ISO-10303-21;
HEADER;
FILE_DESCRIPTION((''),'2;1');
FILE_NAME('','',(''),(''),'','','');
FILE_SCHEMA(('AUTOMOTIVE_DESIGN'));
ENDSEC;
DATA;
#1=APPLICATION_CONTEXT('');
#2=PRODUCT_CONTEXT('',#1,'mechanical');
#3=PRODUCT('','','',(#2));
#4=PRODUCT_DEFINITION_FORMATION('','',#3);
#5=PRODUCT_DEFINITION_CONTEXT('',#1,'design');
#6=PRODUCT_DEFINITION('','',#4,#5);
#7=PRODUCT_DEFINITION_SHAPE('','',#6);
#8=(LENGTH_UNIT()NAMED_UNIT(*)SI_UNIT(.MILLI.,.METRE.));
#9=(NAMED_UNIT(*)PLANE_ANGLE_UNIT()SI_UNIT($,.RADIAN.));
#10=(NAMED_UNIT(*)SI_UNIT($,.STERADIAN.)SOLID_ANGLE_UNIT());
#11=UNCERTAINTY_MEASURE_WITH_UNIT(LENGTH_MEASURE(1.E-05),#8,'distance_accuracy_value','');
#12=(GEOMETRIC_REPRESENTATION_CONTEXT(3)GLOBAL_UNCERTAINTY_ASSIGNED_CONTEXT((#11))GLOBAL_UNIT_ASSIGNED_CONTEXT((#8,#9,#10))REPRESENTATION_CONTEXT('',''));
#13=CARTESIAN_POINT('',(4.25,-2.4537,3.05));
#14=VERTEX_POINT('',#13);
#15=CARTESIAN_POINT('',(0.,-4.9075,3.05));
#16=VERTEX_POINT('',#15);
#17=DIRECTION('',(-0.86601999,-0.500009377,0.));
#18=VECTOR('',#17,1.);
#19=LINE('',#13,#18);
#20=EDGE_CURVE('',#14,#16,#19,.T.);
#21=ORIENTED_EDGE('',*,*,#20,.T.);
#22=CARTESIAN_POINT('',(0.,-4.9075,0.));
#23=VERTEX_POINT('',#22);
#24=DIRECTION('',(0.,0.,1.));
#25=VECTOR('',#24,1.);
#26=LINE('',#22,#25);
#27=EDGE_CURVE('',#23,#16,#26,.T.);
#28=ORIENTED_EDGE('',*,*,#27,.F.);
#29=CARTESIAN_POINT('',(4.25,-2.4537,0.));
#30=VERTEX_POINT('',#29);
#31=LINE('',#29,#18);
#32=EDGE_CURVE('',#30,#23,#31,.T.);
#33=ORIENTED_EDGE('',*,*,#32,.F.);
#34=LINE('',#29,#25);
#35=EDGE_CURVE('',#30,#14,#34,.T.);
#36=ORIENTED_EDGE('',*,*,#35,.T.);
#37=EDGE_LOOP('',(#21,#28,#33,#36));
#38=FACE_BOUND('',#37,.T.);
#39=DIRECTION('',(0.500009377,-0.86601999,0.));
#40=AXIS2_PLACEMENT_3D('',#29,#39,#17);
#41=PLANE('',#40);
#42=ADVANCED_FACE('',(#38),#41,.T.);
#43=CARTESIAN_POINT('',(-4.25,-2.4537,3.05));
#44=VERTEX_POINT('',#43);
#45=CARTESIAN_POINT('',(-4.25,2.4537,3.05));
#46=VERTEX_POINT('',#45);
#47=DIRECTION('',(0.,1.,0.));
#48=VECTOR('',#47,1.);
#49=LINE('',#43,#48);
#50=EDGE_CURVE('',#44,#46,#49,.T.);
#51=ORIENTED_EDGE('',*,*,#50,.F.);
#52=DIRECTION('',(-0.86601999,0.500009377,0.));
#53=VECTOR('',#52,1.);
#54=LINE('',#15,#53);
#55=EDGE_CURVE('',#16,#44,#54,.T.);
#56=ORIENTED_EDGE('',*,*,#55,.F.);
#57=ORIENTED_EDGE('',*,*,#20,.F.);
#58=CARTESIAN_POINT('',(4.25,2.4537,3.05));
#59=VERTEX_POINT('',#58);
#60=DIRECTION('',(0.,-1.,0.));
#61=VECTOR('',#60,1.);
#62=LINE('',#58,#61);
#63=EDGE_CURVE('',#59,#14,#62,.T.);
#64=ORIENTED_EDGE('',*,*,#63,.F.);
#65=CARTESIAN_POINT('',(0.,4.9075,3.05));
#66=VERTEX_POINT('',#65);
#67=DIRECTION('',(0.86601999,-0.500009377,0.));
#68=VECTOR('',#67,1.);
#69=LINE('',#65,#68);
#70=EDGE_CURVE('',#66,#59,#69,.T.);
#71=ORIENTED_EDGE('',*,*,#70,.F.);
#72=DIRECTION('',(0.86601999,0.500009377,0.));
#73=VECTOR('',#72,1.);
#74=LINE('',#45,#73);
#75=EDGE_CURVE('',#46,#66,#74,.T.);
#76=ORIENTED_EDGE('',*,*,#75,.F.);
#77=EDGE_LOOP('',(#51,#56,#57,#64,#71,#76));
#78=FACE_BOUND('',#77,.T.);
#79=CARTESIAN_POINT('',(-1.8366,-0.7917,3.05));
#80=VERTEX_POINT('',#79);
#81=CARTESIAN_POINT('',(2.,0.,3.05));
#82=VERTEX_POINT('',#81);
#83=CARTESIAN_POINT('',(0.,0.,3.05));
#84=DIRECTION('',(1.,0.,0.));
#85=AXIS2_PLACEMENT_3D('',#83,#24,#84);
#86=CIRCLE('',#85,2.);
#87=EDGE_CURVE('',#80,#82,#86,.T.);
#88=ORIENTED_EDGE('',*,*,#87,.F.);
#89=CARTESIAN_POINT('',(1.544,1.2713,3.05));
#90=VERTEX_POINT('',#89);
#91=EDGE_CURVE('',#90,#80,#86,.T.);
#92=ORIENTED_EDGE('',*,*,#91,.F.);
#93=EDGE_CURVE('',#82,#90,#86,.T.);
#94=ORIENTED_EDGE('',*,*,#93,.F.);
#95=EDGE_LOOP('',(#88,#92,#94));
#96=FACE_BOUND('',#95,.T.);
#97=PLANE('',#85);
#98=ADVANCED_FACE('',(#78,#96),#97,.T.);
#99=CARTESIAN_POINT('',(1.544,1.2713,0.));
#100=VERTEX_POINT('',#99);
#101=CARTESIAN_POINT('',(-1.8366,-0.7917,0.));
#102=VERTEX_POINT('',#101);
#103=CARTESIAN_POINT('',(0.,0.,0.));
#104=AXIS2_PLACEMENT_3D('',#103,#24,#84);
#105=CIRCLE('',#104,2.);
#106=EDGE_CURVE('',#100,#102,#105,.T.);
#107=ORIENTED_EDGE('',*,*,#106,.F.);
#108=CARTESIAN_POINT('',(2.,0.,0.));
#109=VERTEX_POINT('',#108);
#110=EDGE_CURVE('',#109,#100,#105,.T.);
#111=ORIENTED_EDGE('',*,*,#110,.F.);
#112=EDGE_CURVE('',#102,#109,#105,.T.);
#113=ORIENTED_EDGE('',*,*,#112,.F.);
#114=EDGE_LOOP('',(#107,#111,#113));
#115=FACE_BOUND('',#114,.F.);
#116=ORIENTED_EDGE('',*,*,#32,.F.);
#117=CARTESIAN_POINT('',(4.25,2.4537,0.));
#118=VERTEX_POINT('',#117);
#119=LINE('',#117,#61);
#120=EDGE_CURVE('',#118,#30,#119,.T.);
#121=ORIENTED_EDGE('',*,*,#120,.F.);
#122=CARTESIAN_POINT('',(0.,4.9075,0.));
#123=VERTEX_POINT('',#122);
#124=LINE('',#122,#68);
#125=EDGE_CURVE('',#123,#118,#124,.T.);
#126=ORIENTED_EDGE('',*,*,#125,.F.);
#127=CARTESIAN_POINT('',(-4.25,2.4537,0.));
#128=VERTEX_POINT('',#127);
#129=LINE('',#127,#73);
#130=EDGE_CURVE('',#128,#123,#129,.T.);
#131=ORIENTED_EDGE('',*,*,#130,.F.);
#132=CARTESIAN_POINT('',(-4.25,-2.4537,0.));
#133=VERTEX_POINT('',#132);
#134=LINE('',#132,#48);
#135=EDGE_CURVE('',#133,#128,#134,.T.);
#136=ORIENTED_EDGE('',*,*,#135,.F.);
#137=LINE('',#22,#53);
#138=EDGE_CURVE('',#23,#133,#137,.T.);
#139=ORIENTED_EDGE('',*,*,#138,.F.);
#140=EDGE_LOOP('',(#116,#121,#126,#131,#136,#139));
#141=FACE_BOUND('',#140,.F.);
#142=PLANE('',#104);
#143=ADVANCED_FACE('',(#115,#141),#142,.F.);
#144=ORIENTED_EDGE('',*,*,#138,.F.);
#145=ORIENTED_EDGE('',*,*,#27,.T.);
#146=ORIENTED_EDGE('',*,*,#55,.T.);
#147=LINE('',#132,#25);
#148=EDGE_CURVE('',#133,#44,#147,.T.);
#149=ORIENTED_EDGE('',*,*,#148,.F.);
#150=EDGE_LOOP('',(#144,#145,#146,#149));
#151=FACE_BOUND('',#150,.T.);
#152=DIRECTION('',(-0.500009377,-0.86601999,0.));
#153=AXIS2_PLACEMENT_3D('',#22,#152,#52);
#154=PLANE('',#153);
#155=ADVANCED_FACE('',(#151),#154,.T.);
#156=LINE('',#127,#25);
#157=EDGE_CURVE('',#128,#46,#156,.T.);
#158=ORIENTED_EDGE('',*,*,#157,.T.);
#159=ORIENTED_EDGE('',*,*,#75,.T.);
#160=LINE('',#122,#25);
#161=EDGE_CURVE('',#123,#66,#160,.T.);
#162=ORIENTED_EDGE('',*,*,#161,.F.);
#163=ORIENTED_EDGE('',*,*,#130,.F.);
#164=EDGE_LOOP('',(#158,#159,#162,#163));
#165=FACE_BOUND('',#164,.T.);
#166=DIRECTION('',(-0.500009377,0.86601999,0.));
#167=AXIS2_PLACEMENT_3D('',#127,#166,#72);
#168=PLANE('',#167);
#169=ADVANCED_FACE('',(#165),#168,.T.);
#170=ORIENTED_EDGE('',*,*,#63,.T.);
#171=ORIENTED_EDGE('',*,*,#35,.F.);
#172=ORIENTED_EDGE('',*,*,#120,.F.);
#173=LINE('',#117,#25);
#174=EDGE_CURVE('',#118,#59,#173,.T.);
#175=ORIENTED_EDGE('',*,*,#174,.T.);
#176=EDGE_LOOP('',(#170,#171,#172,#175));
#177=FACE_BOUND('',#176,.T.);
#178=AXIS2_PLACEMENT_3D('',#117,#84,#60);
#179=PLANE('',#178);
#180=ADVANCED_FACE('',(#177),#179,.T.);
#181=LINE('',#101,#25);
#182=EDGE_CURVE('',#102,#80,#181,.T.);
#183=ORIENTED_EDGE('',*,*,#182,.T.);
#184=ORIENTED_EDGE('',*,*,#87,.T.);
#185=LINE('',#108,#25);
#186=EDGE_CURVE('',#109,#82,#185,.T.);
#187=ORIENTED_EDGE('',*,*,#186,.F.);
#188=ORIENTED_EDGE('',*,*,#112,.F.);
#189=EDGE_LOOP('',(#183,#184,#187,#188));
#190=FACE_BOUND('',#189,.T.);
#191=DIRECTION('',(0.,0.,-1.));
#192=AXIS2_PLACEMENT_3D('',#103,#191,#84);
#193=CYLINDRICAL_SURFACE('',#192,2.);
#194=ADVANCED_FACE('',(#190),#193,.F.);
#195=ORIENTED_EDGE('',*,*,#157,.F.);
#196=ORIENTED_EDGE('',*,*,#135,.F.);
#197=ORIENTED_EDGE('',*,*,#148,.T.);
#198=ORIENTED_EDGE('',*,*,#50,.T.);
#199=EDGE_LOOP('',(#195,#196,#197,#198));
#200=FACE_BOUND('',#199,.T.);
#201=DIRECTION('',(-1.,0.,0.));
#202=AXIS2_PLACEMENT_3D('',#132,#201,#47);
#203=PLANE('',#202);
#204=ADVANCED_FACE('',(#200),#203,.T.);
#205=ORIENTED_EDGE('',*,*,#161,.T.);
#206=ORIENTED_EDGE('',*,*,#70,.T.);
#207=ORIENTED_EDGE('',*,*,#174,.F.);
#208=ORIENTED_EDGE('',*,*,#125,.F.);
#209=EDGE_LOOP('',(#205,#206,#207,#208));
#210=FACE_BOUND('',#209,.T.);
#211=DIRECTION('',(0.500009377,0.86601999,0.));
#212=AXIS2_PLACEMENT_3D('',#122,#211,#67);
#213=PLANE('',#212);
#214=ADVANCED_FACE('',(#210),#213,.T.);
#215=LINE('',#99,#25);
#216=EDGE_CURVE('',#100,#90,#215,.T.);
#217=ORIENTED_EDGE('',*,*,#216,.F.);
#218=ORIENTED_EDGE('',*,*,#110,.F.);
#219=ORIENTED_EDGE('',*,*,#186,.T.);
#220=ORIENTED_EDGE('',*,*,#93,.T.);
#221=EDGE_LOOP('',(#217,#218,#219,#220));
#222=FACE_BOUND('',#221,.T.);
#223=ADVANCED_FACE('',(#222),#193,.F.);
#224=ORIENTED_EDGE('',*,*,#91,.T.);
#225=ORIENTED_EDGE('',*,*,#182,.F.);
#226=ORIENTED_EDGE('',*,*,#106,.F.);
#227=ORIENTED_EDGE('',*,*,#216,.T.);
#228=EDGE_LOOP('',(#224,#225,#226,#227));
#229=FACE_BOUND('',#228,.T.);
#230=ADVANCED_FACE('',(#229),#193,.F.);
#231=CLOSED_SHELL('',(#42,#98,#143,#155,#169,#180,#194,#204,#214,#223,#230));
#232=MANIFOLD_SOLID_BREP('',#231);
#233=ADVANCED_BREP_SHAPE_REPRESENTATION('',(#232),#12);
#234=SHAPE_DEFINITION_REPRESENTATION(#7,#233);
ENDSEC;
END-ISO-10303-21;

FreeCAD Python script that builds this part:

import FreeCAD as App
import Part
import Sketcher
Q = App.Units.Quantity

doc = App.newDocument("Part")
params = doc.addObject("Spreadsheet::Sheet", "Params")
for row, (alias, value) in enumerate([
    ("sketch1_diameter", "4 mm"),
    ("pad1_length", "3.05 mm"),
], start=1):
    params.set(f"A{row}", alias)
    params.set(f"B{row}", "=" + value)
    params.setAlias(f"B{row}", alias)

body = doc.addObject("PartDesign::Body", "Body")

# Sketch on XY plane
sketch1 = body.newObject("Sketcher::SketchObject", "Sketch")
sketch1.AttachmentSupport = (doc.getObject("XY_Plane"), [""])
sketch1.MapMode = "FlatFace"
sketch1.addGeometry([
    Part.LineSegment(App.Vector(-4.2, -2.5, 0), App.Vector(0, -4.9, 0)),  # 0
    Part.LineSegment(App.Vector(0, -4.9, 0), App.Vector(4.2, -2.5, 0)),  # 1
    Part.LineSegment(App.Vector(4.2, -2.5, 0), App.Vector(4.2, 2.5, 0)),  # 2
    Part.LineSegment(App.Vector(4.2, 2.5, 0), App.Vector(0, 4.9, 0)),  # 3
    Part.LineSegment(App.Vector(0, 4.9, 0), App.Vector(-4.2, 2.5, 0)),  # 4
    Part.LineSegment(App.Vector(-4.2, 2.5, 0), App.Vector(-4.2, -2.5, 0)),  # 5
    Part.Circle(App.Vector(0, 0, 0), App.Vector(0, 0, 1), 2),  # 6
], False)
sketch1.addConstraint([
    Sketcher.Constraint("Coincident", 0, 2, 1, 1),
    Sketcher.Constraint("Coincident", 1, 2, 2, 1),
    Sketcher.Constraint("Coincident", 2, 2, 3, 1),
    Sketcher.Constraint("Coincident", 3, 2, 4, 1),
    Sketcher.Constraint("Coincident", 4, 2, 5, 1),
    Sketcher.Constraint("Coincident", 5, 2, 0, 1),
    Sketcher.Constraint("Vertical", 2),
    Sketcher.Constraint("Vertical", 5),
    Sketcher.Constraint("Coincident", 6, 3, -1, 1),
    Sketcher.Constraint("Symmetric", 0, 2, 3, 2, -1, 1),
    Sketcher.Constraint("Symmetric", 1, 2, 4, 2, -1, 1),
    Sketcher.Constraint("PointOnObject", 0, 2, -2),
    Sketcher.Constraint("Parallel", 0, 3),
    Sketcher.Constraint("Horizontal", 2, 2, 4, 2),
    Sketcher.Constraint("Diameter", 6, 4.0),
    Sketcher.Constraint("DistanceX", 4, 2, 2, 2, 8.5),
    Sketcher.Constraint("Angle", 0, Q("-30.0006 deg")),
    Sketcher.Constraint("DistanceY", 2, 1, 2, 2, 4.9074),
])
sketch1.setExpression("Constraints[14]", "Params.sketch1_diameter")
pad1 = body.newObject("PartDesign::Pad", "Pad")
pad1.Profile = sketch1
pad1.setExpression("Length", "Params.pad1_length")

doc.recompute()
